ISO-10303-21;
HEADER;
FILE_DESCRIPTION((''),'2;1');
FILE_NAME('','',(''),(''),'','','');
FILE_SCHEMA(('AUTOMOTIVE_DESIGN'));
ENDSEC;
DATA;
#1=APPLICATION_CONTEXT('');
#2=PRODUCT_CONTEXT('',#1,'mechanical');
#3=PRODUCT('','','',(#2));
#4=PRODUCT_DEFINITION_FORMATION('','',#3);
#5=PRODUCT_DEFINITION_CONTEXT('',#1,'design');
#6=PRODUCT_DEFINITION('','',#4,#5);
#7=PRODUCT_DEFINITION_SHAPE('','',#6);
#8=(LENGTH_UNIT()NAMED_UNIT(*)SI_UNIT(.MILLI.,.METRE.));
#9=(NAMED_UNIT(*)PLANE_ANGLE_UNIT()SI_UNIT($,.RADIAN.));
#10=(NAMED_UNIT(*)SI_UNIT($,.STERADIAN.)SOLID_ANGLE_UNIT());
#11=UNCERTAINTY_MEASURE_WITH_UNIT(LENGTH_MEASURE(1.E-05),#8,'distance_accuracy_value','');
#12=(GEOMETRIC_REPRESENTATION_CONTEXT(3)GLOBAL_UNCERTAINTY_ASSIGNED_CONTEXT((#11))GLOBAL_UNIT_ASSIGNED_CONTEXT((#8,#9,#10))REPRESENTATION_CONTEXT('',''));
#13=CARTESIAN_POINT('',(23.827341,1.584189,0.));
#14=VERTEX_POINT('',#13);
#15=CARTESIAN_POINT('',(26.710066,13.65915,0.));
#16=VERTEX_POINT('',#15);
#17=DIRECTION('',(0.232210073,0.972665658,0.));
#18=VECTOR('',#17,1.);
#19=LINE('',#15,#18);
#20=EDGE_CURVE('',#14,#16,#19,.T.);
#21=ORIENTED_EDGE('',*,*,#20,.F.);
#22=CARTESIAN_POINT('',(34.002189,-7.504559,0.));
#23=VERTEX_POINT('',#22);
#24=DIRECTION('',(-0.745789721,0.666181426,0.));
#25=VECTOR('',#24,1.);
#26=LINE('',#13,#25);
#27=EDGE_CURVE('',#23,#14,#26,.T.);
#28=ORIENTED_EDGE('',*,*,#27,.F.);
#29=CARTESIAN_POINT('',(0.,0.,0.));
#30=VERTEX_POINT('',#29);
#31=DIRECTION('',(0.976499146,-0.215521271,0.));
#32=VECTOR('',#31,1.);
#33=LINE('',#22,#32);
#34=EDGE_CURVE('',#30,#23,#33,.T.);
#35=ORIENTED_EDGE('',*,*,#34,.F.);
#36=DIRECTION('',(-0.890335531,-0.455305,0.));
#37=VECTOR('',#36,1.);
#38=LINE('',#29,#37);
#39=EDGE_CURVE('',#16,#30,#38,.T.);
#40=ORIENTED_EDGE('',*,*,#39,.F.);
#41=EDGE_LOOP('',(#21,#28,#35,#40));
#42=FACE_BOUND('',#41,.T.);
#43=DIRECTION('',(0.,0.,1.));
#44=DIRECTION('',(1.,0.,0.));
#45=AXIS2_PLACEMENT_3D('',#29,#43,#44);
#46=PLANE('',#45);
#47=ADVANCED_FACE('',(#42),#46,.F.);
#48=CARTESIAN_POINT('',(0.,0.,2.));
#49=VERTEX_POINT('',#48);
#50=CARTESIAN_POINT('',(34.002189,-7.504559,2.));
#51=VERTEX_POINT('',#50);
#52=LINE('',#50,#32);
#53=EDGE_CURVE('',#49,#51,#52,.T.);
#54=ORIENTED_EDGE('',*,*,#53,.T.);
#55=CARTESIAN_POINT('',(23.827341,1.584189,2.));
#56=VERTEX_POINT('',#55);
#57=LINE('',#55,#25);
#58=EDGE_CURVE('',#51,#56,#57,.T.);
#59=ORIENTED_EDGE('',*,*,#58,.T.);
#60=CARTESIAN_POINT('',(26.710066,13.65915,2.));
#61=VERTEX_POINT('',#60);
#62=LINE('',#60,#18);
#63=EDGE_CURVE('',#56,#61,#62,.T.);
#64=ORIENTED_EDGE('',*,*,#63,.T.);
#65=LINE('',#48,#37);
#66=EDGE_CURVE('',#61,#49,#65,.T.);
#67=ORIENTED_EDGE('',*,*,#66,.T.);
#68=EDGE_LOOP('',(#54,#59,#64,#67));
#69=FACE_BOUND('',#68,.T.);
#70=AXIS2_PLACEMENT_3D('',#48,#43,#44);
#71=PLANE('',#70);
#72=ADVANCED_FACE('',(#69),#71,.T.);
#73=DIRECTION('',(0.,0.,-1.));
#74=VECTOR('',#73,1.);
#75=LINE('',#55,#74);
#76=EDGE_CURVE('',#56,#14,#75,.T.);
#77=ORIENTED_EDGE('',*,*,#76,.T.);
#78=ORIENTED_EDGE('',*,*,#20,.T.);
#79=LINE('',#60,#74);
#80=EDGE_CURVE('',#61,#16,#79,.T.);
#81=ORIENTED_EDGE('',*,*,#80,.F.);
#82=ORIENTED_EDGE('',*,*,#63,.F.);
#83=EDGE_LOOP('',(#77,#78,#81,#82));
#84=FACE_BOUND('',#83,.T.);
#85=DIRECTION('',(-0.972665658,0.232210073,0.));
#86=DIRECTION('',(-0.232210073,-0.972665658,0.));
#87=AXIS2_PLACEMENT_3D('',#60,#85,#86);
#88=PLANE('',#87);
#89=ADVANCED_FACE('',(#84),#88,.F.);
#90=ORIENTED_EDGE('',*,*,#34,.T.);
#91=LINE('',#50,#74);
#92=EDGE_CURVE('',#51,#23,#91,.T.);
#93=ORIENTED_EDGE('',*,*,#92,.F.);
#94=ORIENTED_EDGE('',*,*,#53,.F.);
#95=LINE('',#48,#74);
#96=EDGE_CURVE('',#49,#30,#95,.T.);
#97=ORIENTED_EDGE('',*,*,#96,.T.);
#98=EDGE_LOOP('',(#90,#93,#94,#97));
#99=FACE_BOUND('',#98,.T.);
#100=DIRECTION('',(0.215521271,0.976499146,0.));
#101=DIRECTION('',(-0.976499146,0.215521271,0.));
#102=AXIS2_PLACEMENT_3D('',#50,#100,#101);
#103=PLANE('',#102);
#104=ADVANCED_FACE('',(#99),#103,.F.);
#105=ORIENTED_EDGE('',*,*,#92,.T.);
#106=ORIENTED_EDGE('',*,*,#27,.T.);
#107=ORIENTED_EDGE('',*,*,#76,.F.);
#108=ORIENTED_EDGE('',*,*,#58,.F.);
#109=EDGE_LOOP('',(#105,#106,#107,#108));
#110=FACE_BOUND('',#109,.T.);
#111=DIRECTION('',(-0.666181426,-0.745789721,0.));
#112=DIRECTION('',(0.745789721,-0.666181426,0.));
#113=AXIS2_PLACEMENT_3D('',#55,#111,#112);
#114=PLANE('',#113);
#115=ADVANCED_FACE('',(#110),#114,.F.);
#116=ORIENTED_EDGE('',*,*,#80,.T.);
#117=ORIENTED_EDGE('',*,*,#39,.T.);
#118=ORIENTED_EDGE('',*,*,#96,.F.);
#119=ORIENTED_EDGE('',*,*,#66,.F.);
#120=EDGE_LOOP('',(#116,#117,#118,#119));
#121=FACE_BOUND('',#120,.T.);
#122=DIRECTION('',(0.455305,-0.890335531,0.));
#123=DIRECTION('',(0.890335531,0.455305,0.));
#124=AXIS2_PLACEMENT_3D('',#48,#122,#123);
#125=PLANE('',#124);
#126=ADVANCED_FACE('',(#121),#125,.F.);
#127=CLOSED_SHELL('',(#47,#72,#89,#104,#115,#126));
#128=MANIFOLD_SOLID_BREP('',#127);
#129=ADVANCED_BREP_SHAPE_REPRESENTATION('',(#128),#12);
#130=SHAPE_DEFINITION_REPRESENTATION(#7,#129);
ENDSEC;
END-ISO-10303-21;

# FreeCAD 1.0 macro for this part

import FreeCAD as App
import Part
import Sketcher
from FreeCAD import Vector


def add_polygon(sketch, points):
    """Adds a closed chain of lines whose ends are joined by coincident constraints."""
    first, n = sketch.GeometryCount, len(points)
    for a, b in zip(points, points[1:] + points[:1]):
        sketch.addGeometry(Part.LineSegment(App.Vector(*a, 0), App.Vector(*b, 0)), False)
    for i in range(n):
        sketch.addConstraint(Sketcher.Constraint("Coincident", first + i, 2, first + (i + 1) % n, 1))

doc = App.newDocument("Part")
body = doc.addObject("PartDesign::Body", "Body")

# Sketch on XY plane
sketch1 = body.newObject("Sketcher::SketchObject", "Sketch")
sketch1.AttachmentSupport = (doc.getObject("XY_Plane"), [""])
sketch1.MapMode = "FlatFace"
add_polygon(sketch1, [(27, 14), (0, 0), (34, -8), (24, 2)])  # lines 0-3
sketch1.addConstraint([
    Sketcher.Constraint("Coincident", 0, 2, -1, 1),
    Sketcher.Constraint("Distance", 0, 30.0),
    Sketcher.Constraint("Distance", 1, 34.820501),
    Sketcher.Constraint("DistanceX", -1, 1, 1, 2, 34.002189),
    Sketcher.Constraint("DistanceX", -1, 1, 2, 2, 23.827341),
    Sketcher.Constraint("DistanceY", -1, 1, 2, 2, 1.584189),
    Sketcher.Constraint("DistanceY", -1, 1, 3, 2, 13.65915),
])
pad1 = body.newObject("PartDesign::Pad", "Pad")
pad1.Profile = sketch1
pad1.Length = 2

doc.recompute()
